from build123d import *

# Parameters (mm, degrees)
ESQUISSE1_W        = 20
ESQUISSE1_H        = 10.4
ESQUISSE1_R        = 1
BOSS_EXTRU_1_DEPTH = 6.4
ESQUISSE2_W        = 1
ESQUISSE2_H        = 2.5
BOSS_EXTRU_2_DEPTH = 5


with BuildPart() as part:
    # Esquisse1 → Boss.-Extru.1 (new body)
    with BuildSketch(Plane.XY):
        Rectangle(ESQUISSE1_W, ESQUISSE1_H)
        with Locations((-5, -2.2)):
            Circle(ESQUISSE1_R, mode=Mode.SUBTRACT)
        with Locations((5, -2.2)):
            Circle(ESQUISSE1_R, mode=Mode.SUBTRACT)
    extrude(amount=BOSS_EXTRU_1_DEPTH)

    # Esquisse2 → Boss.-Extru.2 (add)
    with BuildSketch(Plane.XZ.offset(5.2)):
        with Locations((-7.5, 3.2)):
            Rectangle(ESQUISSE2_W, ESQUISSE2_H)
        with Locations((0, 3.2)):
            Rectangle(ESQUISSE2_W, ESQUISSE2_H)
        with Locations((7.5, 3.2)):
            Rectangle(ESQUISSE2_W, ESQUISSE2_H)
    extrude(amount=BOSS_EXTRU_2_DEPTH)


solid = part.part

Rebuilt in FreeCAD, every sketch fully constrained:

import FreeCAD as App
import Part
import Sketcher

doc = App.newDocument("Part")
body = doc.addObject("PartDesign::Body", "Body")

# Sketch on XY plane
sketch1 = body.newObject("Sketcher::SketchObject", "Sketch")
sketch1.AttachmentSupport = (doc.getObject("XY_Plane"), [""])
sketch1.MapMode = "FlatFace"
sketch1.addGeometry(Part.LineSegment(App.Vector(-10, 5.2, 0), App.Vector(-10, -5.2, 0)), False)
sketch1.addGeometry(Part.LineSegment(App.Vector(-10, -5.2, 0), App.Vector(10, -5.2, 0)), False)
sketch1.addGeometry(Part.LineSegment(App.Vector(10, -5.2, 0), App.Vector(10, 5.2, 0)), False)
sketch1.addGeometry(Part.LineSegment(App.Vector(10, 5.2, 0), App.Vector(-10, 5.2, 0)), False)
sketch1.addGeometry(Part.Circle(App.Vector(-5, -2.2, 0), App.Vector(0, 0, 1), 1), False)
sketch1.addGeometry(Part.Circle(App.Vector(5, -2.2, 0), App.Vector(0, 0, 1), 1), False)
sketch1.addConstraint(Sketcher.Constraint("Coincident", 0, 2, 1, 1))
sketch1.addConstraint(Sketcher.Constraint("Coincident", 1, 2, 2, 1))
sketch1.addConstraint(Sketcher.Constraint("Coincident", 2, 2, 3, 1))
sketch1.addConstraint(Sketcher.Constraint("Coincident", 3, 2, 0, 1))
sketch1.addConstraint(Sketcher.Constraint("Vertical", 0))
sketch1.addConstraint(Sketcher.Constraint("Horizontal", 1))
sketch1.addConstraint(Sketcher.Constraint("Vertical", 2))
sketch1.addConstraint(Sketcher.Constraint("Horizontal", 3))
sketch1.addConstraint(Sketcher.Constraint("Equal", 4, 5))
sketch1.addConstraint(Sketcher.Constraint("Symmetric", 0, 2, 2, 2, -1, 1))
sketch1.addConstraint(Sketcher.Constraint("Symmetric", 4, 3, 5, 3, -2))
sketch1.addConstraint(Sketcher.Constraint("Diameter", 4, 2.0))
sketch1.addConstraint(Sketcher.Constraint("DistanceX", 1, 1, 1, 2, 20.0))
sketch1.addConstraint(Sketcher.Constraint("DistanceY", 0, 2, 0, 1, 10.4))
sketch1.addConstraint(Sketcher.Constraint("DistanceX", 4, 3, -1, 1, 5.0))
sketch1.addConstraint(Sketcher.Constraint("DistanceY", 0, 2, 4, 3, 3.0))
pad1 = body.newObject("PartDesign::Pad", "Pad")
pad1.Profile = sketch1
pad1.Length = 6.4

# Sketch on XZ plane
sketch2 = body.newObject("Sketcher::SketchObject", "Sketch001")
sketch2.AttachmentSupport = (doc.getObject("XZ_Plane"), [""])
sketch2.MapMode = "FlatFace"
sketch2.AttachmentOffset = App.Placement(App.Vector(0, 0, 5.2), App.Rotation())
sketch2.addGeometry(Part.LineSegment(App.Vector(-8, 4.5, 0), App.Vector(-8, 1.9, 0)), False)
sketch2.addGeometry(Part.LineSegment(App.Vector(-8, 1.9, 0), App.Vector(-7, 1.9, 0)), False)
sketch2.addGeometry(Part.LineSegment(App.Vector(-7, 1.9, 0), App.Vector(-7, 4.5, 0)), False)
sketch2.addGeometry(Part.LineSegment(App.Vector(-7, 4.5, 0), App.Vector(-8, 4.5, 0)), False)
sketch2.addGeometry(Part.LineSegment(App.Vector(-0.5, 4.5, 0), App.Vector(-0.5, 1.9, 0)), False)
sketch2.addGeometry(Part.LineSegment(App.Vector(-0.5, 1.9, 0), App.Vector(0.5, 1.9, 0)), False)
sketch2.addGeometry(Part.LineSegment(App.Vector(0.5, 1.9, 0), App.Vector(0.5, 4.5, 0)), False)
sketch2.addGeometry(Part.LineSegment(App.Vector(0.5, 4.5, 0), App.Vector(-0.5, 4.5, 0)), False)
sketch2.addGeometry(Part.LineSegment(App.Vector(7, 4.5, 0), App.Vector(7, 1.9, 0)), False)
sketch2.addGeometry(Part.LineSegment(App.Vector(7, 1.9, 0), App.Vector(8, 1.9, 0)), False)
sketch2.addGeometry(Part.LineSegment(App.Vector(8, 1.9, 0), App.Vector(8, 4.5, 0)), False)
sketch2.addGeometry(Part.LineSegment(App.Vector(8, 4.5, 0), App.Vector(7, 4.5, 0)), False)
sketch2.addConstraint(Sketcher.Constraint("Coincident", 0, 2, 1, 1))
sketch2.addConstraint(Sketcher.Constraint("Coincident", 1, 2, 2, 1))
sketch2.addConstraint(Sketcher.Constraint("Coincident", 2, 2, 3, 1))
sketch2.addConstraint(Sketcher.Constraint("Coincident", 3, 2, 0, 1))
sketch2.addConstraint(Sketcher.Constraint("Coincident", 4, 2, 5, 1))
sketch2.addConstraint(Sketcher.Constraint("Coincident", 5, 2, 6, 1))
sketch2.addConstraint(Sketcher.Constraint("Coincident", 6, 2, 7, 1))
sketch2.addConstraint(Sketcher.Constraint("Coincident", 7, 2, 4, 1))
sketch2.addConstraint(Sketcher.Constraint("Coincident", 8, 2, 9, 1))
sketch2.addConstraint(Sketcher.Constraint("Coincident", 9, 2, 10, 1))
sketch2.addConstraint(Sketcher.Constraint("Coincident", 10, 2, 11, 1))
sketch2.addConstraint(Sketcher.Constraint("Coincident", 11, 2, 8, 1))
sketch2.addConstraint(Sketcher.Constraint("Vertical", 0))
sketch2.addConstraint(Sketcher.Constraint("Horizontal", 1))
sketch2.addConstraint(Sketcher.Constraint("Vertical", 2))
sketch2.addConstraint(Sketcher.Constraint("Horizontal", 3))
sketch2.addConstraint(Sketcher.Constraint("Vertical", 4))
sketch2.addConstraint(Sketcher.Constraint("Horizontal", 5))
sketch2.addConstraint(Sketcher.Constraint("Vertical", 6))
sketch2.addConstraint(Sketcher.Constraint("Horizontal", 7))
sketch2.addConstraint(Sketcher.Constraint("Vertical", 8))
sketch2.addConstraint(Sketcher.Constraint("Horizontal", 9))
sketch2.addConstraint(Sketcher.Constraint("Vertical", 10))
sketch2.addConstraint(Sketcher.Constraint("Horizontal", 11))
sketch2.addConstraint(Sketcher.Constraint("Symmetric", 1, 2, 8, 2, -2))
sketch2.addConstraint(Sketcher.Constraint("Symmetric", 3, 2, 10, 2, -2))
sketch2.addConstraint(Sketcher.Constraint("Horizontal", 1, 2, 4, 2))
sketch2.addConstraint(Sketcher.Constraint("Horizontal", 3, 2, 6, 2))
sketch2.addConstraint(Sketcher.Constraint("Equal", 3, 5))
sketch2.addConstraint(Sketcher.Constraint("DistanceX", 1, 1, 1, 2, 1.0))
sketch2.addConstraint(Sketcher.Constraint("DistanceY", 0, 2, 0, 1, 2.5))
sketch2.addConstraint(Sketcher.Constraint("DistanceX", 0, 2, -1, 1, 8.0))
sketch2.addConstraint(Sketcher.Constraint("DistanceX", 4, 2, -1, 1, 0.5))
sketch2.addConstraint(Sketcher.Constraint("DistanceY", -1, 1, 0, 2, 1.95))
pad2 = body.newObject("PartDesign::Pad", "Pad001")
pad2.Profile = sketch2
pad2.Length = 5

doc.recompute()
